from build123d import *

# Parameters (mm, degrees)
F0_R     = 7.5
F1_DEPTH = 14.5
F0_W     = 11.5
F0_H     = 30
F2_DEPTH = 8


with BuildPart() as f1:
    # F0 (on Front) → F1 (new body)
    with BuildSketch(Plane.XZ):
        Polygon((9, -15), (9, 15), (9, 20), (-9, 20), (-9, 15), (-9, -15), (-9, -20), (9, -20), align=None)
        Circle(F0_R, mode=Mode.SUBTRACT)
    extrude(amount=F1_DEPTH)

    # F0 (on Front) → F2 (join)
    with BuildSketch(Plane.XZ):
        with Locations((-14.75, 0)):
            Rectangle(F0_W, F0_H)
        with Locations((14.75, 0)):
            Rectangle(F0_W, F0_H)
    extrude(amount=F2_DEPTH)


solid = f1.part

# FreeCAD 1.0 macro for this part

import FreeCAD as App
import Part
import Sketcher

doc = App.newDocument("Part")
body = doc.addObject("PartDesign::Body", "Body")

sketch1 = body.newObject("Sketcher::SketchObject", "Sketch")
sketch1.AttachmentSupport = (doc.getObject("XZ_Plane"), [""])
sketch1.MapMode = "FlatFace"
sketch1.addGeometry(Part.LineSegment(App.Vector(9, 20, 0), App.Vector(-9, 20, 0)), False)
sketch1.addGeometry(Part.LineSegment(App.Vector(-9, 20, 0), App.Vector(-9, -20, 0)), False)
sketch1.addGeometry(Part.LineSegment(App.Vector(-9, -20, 0), App.Vector(9, -20, 0)), False)
sketch1.addGeometry(Part.LineSegment(App.Vector(9, -20, 0), App.Vector(9, 20, 0)), False)
sketch1.addGeometry(Part.Circle(App.Vector(0, 0, 0), App.Vector(0, 0, 1), 8), False)
sketch1.addConstraint(Sketcher.Constraint("Coincident", 0, 2, 1, 1))
sketch1.addConstraint(Sketcher.Constraint("Coincident", 1, 2, 2, 1))
sketch1.addConstraint(Sketcher.Constraint("Coincident", 2, 2, 3, 1))
sketch1.addConstraint(Sketcher.Constraint("Coincident", 3, 2, 0, 1))
sketch1.addConstraint(Sketcher.Constraint("Horizontal", 0))
sketch1.addConstraint(Sketcher.Constraint("Vertical", 1))
sketch1.addConstraint(Sketcher.Constraint("Horizontal", 2))
sketch1.addConstraint(Sketcher.Constraint("Vertical", 3))
sketch1.addConstraint(Sketcher.Constraint("Coincident", 4, 3, -1, 1))
sketch1.addConstraint(Sketcher.Constraint("Symmetric", 0, 2, 2, 2, -1, 1))
sketch1.addConstraint(Sketcher.Constraint("Diameter", 4, 15.0))
sketch1.addConstraint(Sketcher.Constraint("DistanceX", 0, 2, 0, 1, 18.0))
sketch1.addConstraint(Sketcher.Constraint("DistanceY", 1, 2, 1, 1, 40.0))
pad1 = body.newObject("PartDesign::Pad", "Pad")
pad1.Profile = sketch1
pad1.Length = 14.5

sketch2 = body.newObject("Sketcher::SketchObject", "Sketch001")
sketch2.AttachmentSupport = (doc.getObject("XZ_Plane"), [""])
sketch2.MapMode = "FlatFace"
sketch2.addGeometry(Part.LineSegment(App.Vector(-20, 15, 0), App.Vector(-20, -15, 0)), False)
sketch2.addGeometry(Part.LineSegment(App.Vector(-20, -15, 0), App.Vector(-9, -15, 0)), False)
sketch2.addGeometry(Part.LineSegment(App.Vector(-9, -15, 0), App.Vector(-9, 15, 0)), False)
sketch2.addGeometry(Part.LineSegment(App.Vector(-9, 15, 0), App.Vector(-20, 15, 0)), False)
sketch2.addGeometry(Part.LineSegment(App.Vector(9, 15, 0), App.Vector(9, -15, 0)), False)
sketch2.addGeometry(Part.LineSegment(App.Vector(9, -15, 0), App.Vector(20, -15, 0)), False)
sketch2.addGeometry(Part.LineSegment(App.Vector(20, -15, 0), App.Vector(20, 15, 0)), False)
sketch2.addGeometry(Part.LineSegment(App.Vector(20, 15, 0), App.Vector(9, 15, 0)), False)
sketch2.addConstraint(Sketcher.Constraint("Coincident", 0, 2, 1, 1))
sketch2.addConstraint(Sketcher.Constraint("Coincident", 1, 2, 2, 1))
sketch2.addConstraint(Sketcher.Constraint("Coincident", 2, 2, 3, 1))
sketch2.addConstraint(Sketcher.Constraint("Coincident", 3, 2, 0, 1))
sketch2.addConstraint(Sketcher.Constraint("Coincident", 4, 2, 5, 1))
sketch2.addConstraint(Sketcher.Constraint("Coincident", 5, 2, 6, 1))
sketch2.addConstraint(Sketcher.Constraint("Coincident", 6, 2, 7, 1))
sketch2.addConstraint(Sketcher.Constraint("Coincident", 7, 2, 4, 1))
sketch2.addConstraint(Sketcher.Constraint("Vertical", 0))
sketch2.addConstraint(Sketcher.Constraint("Horizontal", 1))
sketch2.addConstraint(Sketcher.Constraint("Vertical", 2))
sketch2.addConstraint(Sketcher.Constraint("Horizontal", 3))
sketch2.addConstraint(Sketcher.Constraint("Vertical", 4))
sketch2.addConstraint(Sketcher.Constraint("Horizontal", 5))
sketch2.addConstraint(Sketcher.Constraint("Vertical", 6))
sketch2.addConstraint(Sketcher.Constraint("Horizontal", 7))
sketch2.addConstraint(Sketcher.Constraint("Symmetric", 2, 2, 4, 2, -1, 1))
sketch2.addConstraint(Sketcher.Constraint("Symmetric", 0, 2, 6, 2, -1, 1))
sketch2.addConstraint(Sketcher.Constraint("Horizontal", 1, 2, 4, 2))
sketch2.addConstraint(Sketcher.Constraint("DistanceY", 0, 2, 0, 1, 30.0))
sketch2.addConstraint(Sketcher.Constraint("DistanceX", 1, 1, 1, 2, 11.5))
sketch2.addConstraint(Sketcher.Constraint("DistanceX", 1, 2, -1, 1, 9.0))
pad2 = body.newObject("PartDesign::Pad", "Pad001")
pad2.Profile = sketch2
pad2.Length = 8

doc.recompute()
